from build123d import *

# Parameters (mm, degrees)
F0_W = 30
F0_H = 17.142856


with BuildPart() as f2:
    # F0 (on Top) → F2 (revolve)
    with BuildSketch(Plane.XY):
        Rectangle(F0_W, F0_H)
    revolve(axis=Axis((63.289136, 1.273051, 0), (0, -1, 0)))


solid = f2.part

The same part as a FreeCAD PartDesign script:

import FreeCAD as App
import Part
import Sketcher

V = App.Vector
Q = App.Units.Quantity


def add_polygon(sketch, points):
    """Adds a closed chain of lines whose ends are joined by coincident constraints."""
    first, n = sketch.GeometryCount, len(points)
    for a, b in zip(points, points[1:] + points[:1]):
        sketch.addGeometry(Part.LineSegment(App.Vector(*a, 0), App.Vector(*b, 0)), False)
    for i in range(n):
        sketch.addConstraint(Sketcher.Constraint("Coincident", first + i, 2, first + (i + 1) % n, 1))

doc = App.newDocument("Part")
body = doc.addObject("PartDesign::Body", "Body")

sketch1 = body.newObject("Sketcher::SketchObject", "Sketch")
sketch1.AttachmentSupport = (doc.getObject("XY_Plane"), [""])
sketch1.MapMode = "FlatFace"
add_polygon(sketch1, [(-15, 8.571428), (-15, -8.571428), (15, -8.571428), (15, 8.571428)])
sketch1.addGeometry(Part.LineSegment(V(63.289136, 8.571428, 0), V(63.289136, -8.571428, 0)), True)
sketch1.addConstraint(Sketcher.Constraint("Vertical", 0))
sketch1.addConstraint(Sketcher.Constraint("Horizontal", 1))
sketch1.addConstraint(Sketcher.Constraint("Vertical", 2))
sketch1.addConstraint(Sketcher.Constraint("Horizontal", 3))
sketch1.addConstraint(Sketcher.Constraint("Vertical", 4))
sketch1.addConstraint(Sketcher.Constraint("Symmetric", 0, 2, 2, 2, -1, 1))
sketch1.addConstraint(Sketcher.Constraint("Horizontal", 3, 2, 4, 1))
sketch1.addConstraint(Sketcher.Constraint("Horizontal", 1, 2, 4, 2))
sketch1.addConstraint(Sketcher.Constraint("DistanceX", 1, 1, 1, 2, Q("30 mm")))
sketch1.addConstraint(Sketcher.Constraint("DistanceY", 0, 2, 0, 1, Q("17.142856 mm")))
sketch1.addConstraint(Sketcher.Constraint("DistanceX", -1, 1, 4, 1, Q("63.289136 mm")))
revolution = body.newObject("PartDesign::Revolution", "Revolution")
revolution.Profile = sketch1
revolution.ReferenceAxis = (sketch1, ["Axis0"])
revolution.Angle = 360

doc.recompute()
